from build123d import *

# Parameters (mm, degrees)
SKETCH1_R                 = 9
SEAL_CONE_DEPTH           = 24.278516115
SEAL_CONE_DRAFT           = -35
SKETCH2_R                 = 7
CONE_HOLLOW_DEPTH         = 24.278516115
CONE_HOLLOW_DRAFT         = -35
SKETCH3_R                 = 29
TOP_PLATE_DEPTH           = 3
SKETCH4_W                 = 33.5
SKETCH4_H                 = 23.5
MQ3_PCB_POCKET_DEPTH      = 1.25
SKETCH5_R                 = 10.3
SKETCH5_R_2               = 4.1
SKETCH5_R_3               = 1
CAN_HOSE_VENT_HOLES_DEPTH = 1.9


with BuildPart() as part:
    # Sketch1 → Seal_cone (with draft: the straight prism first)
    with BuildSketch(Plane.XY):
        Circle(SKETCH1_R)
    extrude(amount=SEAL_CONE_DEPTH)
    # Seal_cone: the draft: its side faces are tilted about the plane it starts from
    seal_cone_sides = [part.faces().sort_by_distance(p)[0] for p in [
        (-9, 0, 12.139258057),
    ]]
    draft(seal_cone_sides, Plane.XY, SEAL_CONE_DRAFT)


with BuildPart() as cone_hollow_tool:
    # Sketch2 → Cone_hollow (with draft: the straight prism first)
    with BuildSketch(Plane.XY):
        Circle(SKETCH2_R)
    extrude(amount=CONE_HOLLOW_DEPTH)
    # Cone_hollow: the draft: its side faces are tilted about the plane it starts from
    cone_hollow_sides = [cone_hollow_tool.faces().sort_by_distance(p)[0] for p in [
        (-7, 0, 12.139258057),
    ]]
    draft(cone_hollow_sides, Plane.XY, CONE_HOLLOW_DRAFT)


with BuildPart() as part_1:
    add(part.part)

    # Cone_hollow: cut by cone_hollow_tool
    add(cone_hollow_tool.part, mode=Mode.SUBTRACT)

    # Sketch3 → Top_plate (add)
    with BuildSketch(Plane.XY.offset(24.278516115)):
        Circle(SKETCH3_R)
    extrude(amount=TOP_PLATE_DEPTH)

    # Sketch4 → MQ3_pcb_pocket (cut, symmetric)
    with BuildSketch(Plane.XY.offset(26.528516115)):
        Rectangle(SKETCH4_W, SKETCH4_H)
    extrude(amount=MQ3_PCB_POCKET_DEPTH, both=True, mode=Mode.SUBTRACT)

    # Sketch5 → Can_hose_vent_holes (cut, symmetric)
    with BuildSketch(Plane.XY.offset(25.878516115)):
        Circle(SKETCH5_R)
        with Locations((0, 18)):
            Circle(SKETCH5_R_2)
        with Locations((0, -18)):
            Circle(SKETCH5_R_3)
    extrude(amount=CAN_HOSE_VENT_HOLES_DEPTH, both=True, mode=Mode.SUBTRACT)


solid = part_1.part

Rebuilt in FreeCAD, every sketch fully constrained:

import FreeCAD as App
import Part
import Sketcher
from FreeCAD import Vector


def faces_at(feature, points):
    """Names of the faces that lie closest to the given points."""
    faces = feature.Shape.Faces
    near = lambda p: min(range(len(faces)), key=lambda i: faces[i].distToShape(Part.Vertex(*p))[0])
    return sorted({f"Face{near(p) + 1}" for p in points})


def add_polygon(sketch, points):
    """Adds a closed chain of lines whose ends are joined by coincident constraints."""
    first, n = sketch.GeometryCount, len(points)
    for a, b in zip(points, points[1:] + points[:1]):
        sketch.addGeometry(Part.LineSegment(App.Vector(*a, 0), App.Vector(*b, 0)), False)
    for i in range(n):
        sketch.addConstraint(Sketcher.Constraint("Coincident", first + i, 2, first + (i + 1) % n, 1))

doc = App.newDocument("Part")
body = doc.addObject("PartDesign::Body", "Body")

sketch1 = doc.addObject("Sketcher::SketchObject", "Sketch")
body.addObject(sketch1)
sketch1.AttachmentSupport = (doc.XY_Plane, [""])
sketch1.MapMode = "FlatFace"
sketch1.addGeometry(Part.Circle(Vector(0, 0, 0), Vector(0, 0, 1), 9), False)
sketch1.addConstraint([
    Sketcher.Constraint("Coincident", 0, 3, -1, 1),
    Sketcher.Constraint("Diameter", 0, 18.0),
])
pad1 = doc.addObject("PartDesign::Pad", "Pad")
body.addObject(pad1)
pad1.Profile = sketch1
pad1.Length = 24.278516
doc.recompute()

draft = doc.addObject("PartDesign::Draft", "Draft")
body.addObject(draft)
draft.Base = (pad1, faces_at(pad1, [(-9, 0, 12.139)]))
draft.NeutralPlane = (doc.XY_Plane, [""])
draft.Angle = 35
draft.Reversed = True
body2 = doc.addObject("PartDesign::Body", "Body001")

sketch2 = doc.addObject("Sketcher::SketchObject", "Sketch001")
body2.addObject(sketch2)
sketch2.AttachmentSupport = (doc.getObject("XY_Plane001"), [""])
sketch2.MapMode = "FlatFace"
sketch2.addGeometry(Part.Circle(Vector(0, 0, 0), Vector(0, 0, 1), 7), False)
sketch2.addConstraint([
    Sketcher.Constraint("Coincident", 0, 3, -1, 1),
    Sketcher.Constraint("Diameter", 0, 14.0),
])
pad2 = doc.addObject("PartDesign::Pad", "Pad001")
body2.addObject(pad2)
pad2.Profile = sketch2
pad2.Length = 24.278516
doc.recompute()

draft2 = doc.addObject("PartDesign::Draft", "Draft001")
body2.addObject(draft2)
draft2.Base = (pad2, faces_at(pad2, [(-7, 0, 12.139)]))
draft2.NeutralPlane = (doc.getObject("XY_Plane001"), [""])
draft2.Angle = 35
draft2.Reversed = True
doc.recompute()

boolean = doc.addObject("PartDesign::Boolean", "Boolean")
body.addObject(boolean)
boolean.Type = "Cut"
boolean.addObjects([body2])

sketch3 = doc.addObject("Sketcher::SketchObject", "Sketch002")
body.addObject(sketch3)
sketch3.AttachmentSupport = (doc.XY_Plane, [""])
sketch3.MapMode = "FlatFace"
sketch3.AttachmentOffset = App.Placement(Vector(0, 0, 24.278516), App.Rotation())
sketch3.addGeometry(Part.Circle(Vector(0, 0, 0), Vector(0, 0, 1), 29), False)
sketch3.addConstraint([
    Sketcher.Constraint("Coincident", 0, 3, -1, 1),
    Sketcher.Constraint("Diameter", 0, 58.0),
])
pad3 = doc.addObject("PartDesign::Pad", "Pad002")
body.addObject(pad3)
pad3.Profile = sketch3
pad3.Length = 3

sketch4 = doc.addObject("Sketcher::SketchObject", "Sketch003")
body.addObject(sketch4)
sketch4.AttachmentSupport = (doc.XY_Plane, [""])
sketch4.MapMode = "FlatFace"
sketch4.AttachmentOffset = App.Placement(Vector(0, 0, 26.528516), App.Rotation())
add_polygon(sketch4, [(-16.75, 11.75), (-16.75, -11.75), (16.75, -11.75), (16.75, 11.75)])
sketch4.addConstraint([
    Sketcher.Constraint("Vertical", 0),
    Sketcher.Constraint("Horizontal", 1),
    Sketcher.Constraint("Vertical", 2),
    Sketcher.Constraint("Horizontal", 3),
    Sketcher.Constraint("Symmetric", 0, 2, 2, 2, -1, 1),
    Sketcher.Constraint("DistanceX", 1, 1, 1, 2, 33.5),
    Sketcher.Constraint("DistanceY", 0, 2, 0, 1, 23.5),
])
pocket1 = doc.addObject("PartDesign::Pocket", "Pocket")
body.addObject(pocket1)
pocket1.Profile = sketch4
pocket1.Length = 2.5
pocket1.Midplane = True

sketch5 = doc.addObject("Sketcher::SketchObject", "Sketch004")
body.addObject(sketch5)
sketch5.AttachmentSupport = (doc.XY_Plane, [""])
sketch5.MapMode = "FlatFace"
sketch5.AttachmentOffset = App.Placement(Vector(0, 0, 25.878516), App.Rotation())
sketch5.addGeometry([
    Part.Circle(Vector(0, 0, 0), Vector(0, 0, 1), 10.3),
    Part.Circle(Vector(0, 18, 0), Vector(0, 0, 1), 4.1),
    Part.Circle(Vector(0, -18, 0), Vector(0, 0, 1), 1),
], False)
sketch5.addConstraint([
    Sketcher.Constraint("Coincident", 0, 3, -1, 1),
    Sketcher.Constraint("Symmetric", 1, 3, 2, 3, -1, 1),
    Sketcher.Constraint("PointOnObject", 1, 3, -2),
    Sketcher.Constraint("Diameter", 2, 2.0),
    Sketcher.Constraint("Diameter", 0, 20.6),
    Sketcher.Constraint("Diameter", 1, 8.2),
    Sketcher.Constraint("DistanceY", -1, 1, 1, 3, 18.0),
])
pocket2 = doc.addObject("PartDesign::Pocket", "Pocket001")
body.addObject(pocket2)
pocket2.Profile = sketch5
pocket2.Length = 3.8
pocket2.Midplane = True

doc.recompute()
